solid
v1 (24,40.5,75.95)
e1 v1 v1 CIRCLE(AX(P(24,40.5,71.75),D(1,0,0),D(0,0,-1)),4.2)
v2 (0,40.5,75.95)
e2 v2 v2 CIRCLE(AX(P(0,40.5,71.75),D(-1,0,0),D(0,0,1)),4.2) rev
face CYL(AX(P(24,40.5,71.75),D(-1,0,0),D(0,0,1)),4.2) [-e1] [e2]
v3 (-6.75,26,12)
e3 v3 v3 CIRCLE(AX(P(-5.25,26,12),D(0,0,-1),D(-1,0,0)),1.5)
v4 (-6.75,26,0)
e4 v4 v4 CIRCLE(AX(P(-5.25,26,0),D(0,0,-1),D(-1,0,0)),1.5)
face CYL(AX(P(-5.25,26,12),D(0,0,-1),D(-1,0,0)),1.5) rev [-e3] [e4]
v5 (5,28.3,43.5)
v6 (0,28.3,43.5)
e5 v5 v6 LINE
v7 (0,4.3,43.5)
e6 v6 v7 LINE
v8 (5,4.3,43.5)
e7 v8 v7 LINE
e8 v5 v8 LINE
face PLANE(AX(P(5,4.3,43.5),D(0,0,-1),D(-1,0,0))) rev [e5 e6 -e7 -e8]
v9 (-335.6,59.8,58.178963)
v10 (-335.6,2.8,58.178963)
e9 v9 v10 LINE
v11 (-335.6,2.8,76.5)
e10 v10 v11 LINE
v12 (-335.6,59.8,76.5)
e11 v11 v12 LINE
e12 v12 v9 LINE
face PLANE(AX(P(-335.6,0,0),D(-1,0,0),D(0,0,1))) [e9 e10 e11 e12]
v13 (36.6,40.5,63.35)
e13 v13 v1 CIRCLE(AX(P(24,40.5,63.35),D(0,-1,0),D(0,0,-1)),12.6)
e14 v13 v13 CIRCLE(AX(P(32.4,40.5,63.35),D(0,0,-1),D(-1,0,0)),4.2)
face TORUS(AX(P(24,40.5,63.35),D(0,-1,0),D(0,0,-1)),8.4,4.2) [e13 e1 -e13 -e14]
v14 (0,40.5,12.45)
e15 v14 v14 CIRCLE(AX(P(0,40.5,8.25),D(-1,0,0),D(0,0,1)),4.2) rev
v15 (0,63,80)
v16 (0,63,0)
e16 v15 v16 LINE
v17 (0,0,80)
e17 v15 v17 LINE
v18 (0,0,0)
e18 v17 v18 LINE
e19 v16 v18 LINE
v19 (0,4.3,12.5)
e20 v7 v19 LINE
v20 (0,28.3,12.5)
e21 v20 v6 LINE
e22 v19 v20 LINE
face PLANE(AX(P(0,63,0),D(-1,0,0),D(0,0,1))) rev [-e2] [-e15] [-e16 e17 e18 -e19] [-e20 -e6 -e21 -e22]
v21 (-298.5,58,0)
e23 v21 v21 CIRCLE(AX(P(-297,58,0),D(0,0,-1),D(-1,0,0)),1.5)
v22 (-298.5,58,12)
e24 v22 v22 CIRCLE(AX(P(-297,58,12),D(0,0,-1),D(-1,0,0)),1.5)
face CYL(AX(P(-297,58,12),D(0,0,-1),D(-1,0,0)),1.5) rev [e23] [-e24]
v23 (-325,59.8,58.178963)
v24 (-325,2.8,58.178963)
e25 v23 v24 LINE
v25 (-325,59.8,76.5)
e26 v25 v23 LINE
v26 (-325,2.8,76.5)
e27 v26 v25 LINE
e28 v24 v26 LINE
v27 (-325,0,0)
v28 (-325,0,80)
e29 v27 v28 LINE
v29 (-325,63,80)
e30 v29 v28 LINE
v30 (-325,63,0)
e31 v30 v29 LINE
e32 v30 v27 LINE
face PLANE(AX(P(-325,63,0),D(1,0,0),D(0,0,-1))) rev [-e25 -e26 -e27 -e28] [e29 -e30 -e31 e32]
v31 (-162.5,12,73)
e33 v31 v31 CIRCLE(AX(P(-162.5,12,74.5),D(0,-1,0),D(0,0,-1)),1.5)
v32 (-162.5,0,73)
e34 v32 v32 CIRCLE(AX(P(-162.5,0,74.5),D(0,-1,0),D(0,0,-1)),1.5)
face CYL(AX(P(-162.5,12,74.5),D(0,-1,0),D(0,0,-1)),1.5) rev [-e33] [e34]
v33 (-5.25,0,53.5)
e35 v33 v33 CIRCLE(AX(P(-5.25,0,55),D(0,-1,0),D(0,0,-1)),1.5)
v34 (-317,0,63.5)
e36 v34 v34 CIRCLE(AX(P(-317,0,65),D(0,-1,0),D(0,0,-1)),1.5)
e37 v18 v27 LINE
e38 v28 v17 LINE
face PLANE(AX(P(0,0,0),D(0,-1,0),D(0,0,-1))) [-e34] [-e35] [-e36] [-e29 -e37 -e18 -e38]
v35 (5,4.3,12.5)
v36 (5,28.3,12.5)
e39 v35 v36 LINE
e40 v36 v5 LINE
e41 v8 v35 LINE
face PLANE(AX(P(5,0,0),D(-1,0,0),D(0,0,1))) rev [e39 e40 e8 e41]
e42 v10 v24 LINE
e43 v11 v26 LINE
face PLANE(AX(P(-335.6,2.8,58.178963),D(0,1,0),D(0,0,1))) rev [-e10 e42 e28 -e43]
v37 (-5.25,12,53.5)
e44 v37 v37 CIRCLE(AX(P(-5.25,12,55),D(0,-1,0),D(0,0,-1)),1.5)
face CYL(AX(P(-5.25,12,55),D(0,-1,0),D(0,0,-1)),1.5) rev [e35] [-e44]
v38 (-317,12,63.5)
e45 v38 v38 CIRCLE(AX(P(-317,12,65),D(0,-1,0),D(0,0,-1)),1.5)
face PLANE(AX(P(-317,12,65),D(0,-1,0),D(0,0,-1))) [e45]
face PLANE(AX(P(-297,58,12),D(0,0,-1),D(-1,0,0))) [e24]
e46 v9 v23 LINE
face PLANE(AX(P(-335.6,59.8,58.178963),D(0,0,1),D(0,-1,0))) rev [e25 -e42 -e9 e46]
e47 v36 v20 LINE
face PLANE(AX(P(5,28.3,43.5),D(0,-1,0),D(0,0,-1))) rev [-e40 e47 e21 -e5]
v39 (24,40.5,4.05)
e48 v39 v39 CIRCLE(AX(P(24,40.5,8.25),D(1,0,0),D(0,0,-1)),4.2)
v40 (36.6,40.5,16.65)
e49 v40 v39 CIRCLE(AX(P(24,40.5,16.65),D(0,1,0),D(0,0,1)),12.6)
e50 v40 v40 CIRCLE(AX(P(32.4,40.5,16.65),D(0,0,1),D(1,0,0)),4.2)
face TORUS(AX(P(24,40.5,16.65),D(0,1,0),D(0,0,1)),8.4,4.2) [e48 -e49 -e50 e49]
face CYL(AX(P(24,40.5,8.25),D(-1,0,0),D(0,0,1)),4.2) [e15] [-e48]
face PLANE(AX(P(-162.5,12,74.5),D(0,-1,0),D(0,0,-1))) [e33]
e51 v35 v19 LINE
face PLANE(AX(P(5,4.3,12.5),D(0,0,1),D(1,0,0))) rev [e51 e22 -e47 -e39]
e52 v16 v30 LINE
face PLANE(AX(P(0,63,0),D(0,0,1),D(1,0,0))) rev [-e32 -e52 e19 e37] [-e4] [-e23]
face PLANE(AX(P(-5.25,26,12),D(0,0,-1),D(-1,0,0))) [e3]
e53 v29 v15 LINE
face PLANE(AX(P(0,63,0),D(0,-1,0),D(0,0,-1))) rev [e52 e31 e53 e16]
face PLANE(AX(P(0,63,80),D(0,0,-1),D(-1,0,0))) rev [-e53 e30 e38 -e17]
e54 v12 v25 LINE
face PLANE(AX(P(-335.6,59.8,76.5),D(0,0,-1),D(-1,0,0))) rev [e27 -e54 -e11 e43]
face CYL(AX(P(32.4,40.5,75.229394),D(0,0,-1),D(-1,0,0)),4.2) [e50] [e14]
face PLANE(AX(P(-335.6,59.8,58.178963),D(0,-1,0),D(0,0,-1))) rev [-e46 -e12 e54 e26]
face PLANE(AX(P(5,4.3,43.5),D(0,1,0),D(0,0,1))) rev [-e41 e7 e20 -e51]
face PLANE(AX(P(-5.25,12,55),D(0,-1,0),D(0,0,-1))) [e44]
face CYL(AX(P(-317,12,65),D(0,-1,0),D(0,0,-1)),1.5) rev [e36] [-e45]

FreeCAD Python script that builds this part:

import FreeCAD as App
import Part
import Sketcher

V = App.Vector

doc = App.newDocument("Part")
body = doc.addObject("PartDesign::Body", "Body")

sketch1 = body.newObject("Sketcher::SketchObject", "Sketch")
sketch1.AttachmentSupport = (doc.getObject("XZ_Plane"), [""])
sketch1.MapMode = "FlatFace"
sketch1.addGeometry([
    Part.LineSegment(V(-325, 0, 0), V(-325, 80, 0)),
    Part.LineSegment(V(-325, 80, 0), V(0, 80, 0)),
    Part.LineSegment(V(0, 80, 0), V(0, 0, 0)),
    Part.LineSegment(V(0, 0, 0), V(-325, 0, 0)),
], False)
sketch1.addConstraint([
    Sketcher.Constraint("Coincident", 0, 2, 1, 1),
    Sketcher.Constraint("Coincident", 1, 2, 2, 1),
    Sketcher.Constraint("Coincident", 2, 2, 3, 1),
    Sketcher.Constraint("Coincident", 3, 2, 0, 1),
    Sketcher.Constraint("Vertical", 0),
    Sketcher.Constraint("Horizontal", 1),
    Sketcher.Constraint("Vertical", 2),
    Sketcher.Constraint("Horizontal", 3),
    Sketcher.Constraint("Coincident", 2, 2, -1, 1),
    Sketcher.Constraint("DistanceX", 1, 1, 1, 2, 325.0),
    Sketcher.Constraint("DistanceY", 0, 1, 0, 2, 80.0),
])
pad1 = body.newObject("PartDesign::Pad", "Pad")
pad1.Profile = sketch1
pad1.Length = 63
pad1.Reversed = True

sketch2 = body.newObject("Sketcher::SketchObject", "Sketch001")
sketch2.AttachmentSupport = (doc.getObject("YZ_Plane"), [""])
sketch2.MapMode = "FlatFace"
sketch2.addGeometry([
    Part.Circle(V(40.5, 71.8, 0), V(0, 0, 1), 4.2),
    Part.Circle(V(40.5, 8.2, 0), V(0, 0, 1), 4.2),
], False)
sketch2.addConstraint([
    Sketcher.Constraint("Equal", 0, 1),
    Sketcher.Constraint("Vertical", 0, 3, 1, 3),
    Sketcher.Constraint("Diameter", 0, 8.4),
    Sketcher.Constraint("DistanceX", -1, 1, 0, 3, 40.5),
    Sketcher.Constraint("DistanceY", 1, 3, 0, 3, 63.5),
    Sketcher.Constraint("DistanceY", -1, 1, 0, 3, 71.75),
])
pad2 = body.newObject("PartDesign::Pad", "Pad001")
pad2.Profile = sketch2
pad2.Length = 24

sketch3 = body.newObject("Sketcher::SketchObject", "Sketch002")
sketch3.AttachmentSupport = (doc.getObject("YZ_Plane"), [""])
sketch3.MapMode = "FlatFace"
sketch3.AttachmentOffset = App.Placement(V(0, 0, 24), App.Rotation())
sketch3.addGeometry(Part.Circle(V(40.5, 71.8, 0), V(0, 0, 1), 4.2), False)
sketch3.addGeometry(Part.LineSegment(V(40.5, 63.4, 0), V(50.5, 63.4, 0)), True)
sketch3.addConstraint([
    Sketcher.Constraint("Horizontal", 1),
    Sketcher.Constraint("Vertical", 0, 3, 1, 1),
    Sketcher.Constraint("Diameter", 0, 8.4),
    Sketcher.Constraint("DistanceX", 1, 1, 1, 2, 10.0),
    Sketcher.Constraint("DistanceX", -1, 1, 0, 3, 40.5),
    Sketcher.Constraint("DistanceY", 1, 1, 0, 3, 8.4),
    Sketcher.Constraint("DistanceY", -1, 1, 0, 3, 71.75),
])
revolution = body.newObject("PartDesign::Revolution", "Revolution")
revolution.Profile = sketch3
revolution.ReferenceAxis = (sketch3, ["Axis0"])
revolution.Angle = 90

sketch4 = body.newObject("Sketcher::SketchObject", "Sketch003")
sketch4.AttachmentSupport = (doc.getObject("YZ_Plane"), [""])
sketch4.MapMode = "FlatFace"
sketch4.AttachmentOffset = App.Placement(V(0, 0, 24), App.Rotation())
sketch4.addGeometry(Part.Circle(V(40.5, 8.2, 0), V(0, 0, 1), 4.2), False)
sketch4.addGeometry(Part.LineSegment(V(40.5, 16.6, 0), V(30.5, 16.6, 0)), True)
sketch4.addConstraint([
    Sketcher.Constraint("Horizontal", 1),
    Sketcher.Constraint("Vertical", 0, 3, 1, 1),
    Sketcher.Constraint("Diameter", 0, 8.4),
    Sketcher.Constraint("DistanceX", 1, 2, 1, 1, 10.0),
    Sketcher.Constraint("DistanceX", -1, 1, 0, 3, 40.5),
    Sketcher.Constraint("DistanceY", 0, 3, 1, 1, 8.4),
    Sketcher.Constraint("DistanceY", -1, 1, 0, 3, 8.25),
])
revolution2 = body.newObject("PartDesign::Revolution", "Revolution001")
revolution2.Profile = sketch4
revolution2.ReferenceAxis = (sketch4, ["Axis0"])
revolution2.Angle = 90

sketch5 = body.newObject("Sketcher::SketchObject", "Sketch004")
sketch5.AttachmentSupport = (doc.getObject("XY_Plane"), [""])
sketch5.MapMode = "FlatFace"
sketch5.AttachmentOffset = App.Placement(V(0, 0, 16.65), App.Rotation())
sketch5.addGeometry(Part.Circle(V(32.4, 40.5, 0), V(0, 0, 1), 4.2), False)
sketch5.addConstraint([
    Sketcher.Constraint("Diameter", 0, 8.4),
    Sketcher.Constraint("DistanceX", -1, 1, 0, 3, 32.4),
    Sketcher.Constraint("DistanceY", -1, 1, 0, 3, 40.5),
])
pad3 = body.newObject("PartDesign::Pad", "Pad002")
pad3.Profile = sketch5
pad3.Length = 46.7

sketch6 = body.newObject("Sketcher::SketchObject", "Sketch005")
sketch6.AttachmentSupport = (doc.getObject("YZ_Plane"), [""])
sketch6.MapMode = "FlatFace"
sketch6.addGeometry([
    Part.LineSegment(V(28, 44, 0), V(4, 44, 0)),
    Part.LineSegment(V(4, 44, 0), V(4, 12, 0)),
    Part.LineSegment(V(4, 12, 0), V(28, 12, 0)),
    Part.LineSegment(V(28, 12, 0), V(28, 44, 0)),
], False)
sketch6.addConstraint([
    Sketcher.Constraint("Coincident", 0, 2, 1, 1),
    Sketcher.Constraint("Coincident", 1, 2, 2, 1),
    Sketcher.Constraint("Coincident", 2, 2, 3, 1),
    Sketcher.Constraint("Coincident", 3, 2, 0, 1),
    Sketcher.Constraint("Horizontal", 0),
    Sketcher.Constraint("Vertical", 1),
    Sketcher.Constraint("Horizontal", 2),
    Sketcher.Constraint("Vertical", 3),
    Sketcher.Constraint("DistanceX", 0, 2, 0, 1, 24.0),
    Sketcher.Constraint("DistanceY", 1, 2, 1, 1, 31.0),
    Sketcher.Constraint("DistanceX", -1, 1, 0, 2, 4.3),
    Sketcher.Constraint("DistanceY", -1, 1, 0, 2, 43.5),
])
pad4 = body.newObject("PartDesign::Pad", "Pad003")
pad4.Profile = sketch6
pad4.Length = 5

sketch7 = body.newObject("Sketcher::SketchObject", "Sketch006")
sketch7.AttachmentSupport = (doc.getObject("YZ_Plane"), [""])
sketch7.MapMode = "FlatFace"
sketch7.AttachmentOffset = App.Placement(V(0, 0, -325), App.Rotation())
sketch7.addGeometry([
    Part.LineSegment(V(60, 58, 0), V(3, 58, 0)),
    Part.LineSegment(V(3, 58, 0), V(3, 76, 0)),
    Part.LineSegment(V(3, 76, 0), V(60, 76, 0)),
    Part.LineSegment(V(60, 76, 0), V(60, 58, 0)),
], False)
sketch7.addConstraint([
    Sketcher.Constraint("Coincident", 0, 2, 1, 1),
    Sketcher.Constraint("Coincident", 1, 2, 2, 1),
    Sketcher.Constraint("Coincident", 2, 2, 3, 1),
    Sketcher.Constraint("Coincident", 3, 2, 0, 1),
    Sketcher.Constraint("Horizontal", 0),
    Sketcher.Constraint("Vertical", 1),
    Sketcher.Constraint("Horizontal", 2),
    Sketcher.Constraint("Vertical", 3),
    Sketcher.Constraint("DistanceX", 0, 2, 0, 1, 57.0),
    Sketcher.Constraint("DistanceX", -1, 1, 0, 2, 2.8),
    Sketcher.Constraint("DistanceY", -1, 1, 1, 2, 76.5),
    Sketcher.Constraint("DistanceY", 1, 1, 1, 2, 18.321037),
])
pad5 = body.newObject("PartDesign::Pad", "Pad004")
pad5.Profile = sketch7
pad5.Length = 10.6
pad5.Reversed = True

sketch8 = body.newObject("Sketcher::SketchObject", "Sketch007")
sketch8.AttachmentSupport = (doc.getObject("XZ_Plane"), [""])
sketch8.MapMode = "FlatFace"
sketch8.addGeometry([
    Part.Circle(V(-317, 65, 0), V(0, 0, 1), 1.5),
    Part.Circle(V(-162.5, 74.5, 0), V(0, 0, 1), 1.5),
    Part.Circle(V(-5.2, 55, 0), V(0, 0, 1), 1.5),
], False)
sketch8.addConstraint([
    Sketcher.Constraint("Equal", 0, 1),
    Sketcher.Constraint("Equal", 1, 2),
    Sketcher.Constraint("Diameter", 0, 3.0),
    Sketcher.Constraint("DistanceX", 0, 3, -1, 1, 317.0),
    Sketcher.Constraint("DistanceY", -1, 1, 0, 3, 65.0),
    Sketcher.Constraint("DistanceY", -1, 1, 2, 3, 55.0),
    Sketcher.Constraint("DistanceX", 1, 3, -1, 1, 162.5),
    Sketcher.Constraint("DistanceY", -1, 1, 1, 3, 74.5),
    Sketcher.Constraint("DistanceX", 2, 3, -1, 1, 5.25),
])
pocket1 = body.newObject("PartDesign::Pocket", "Pocket")
pocket1.Profile = sketch8
pocket1.Length = 12

sketch9 = body.newObject("Sketcher::SketchObject", "Sketch008")
sketch9.AttachmentSupport = (doc.getObject("XY_Plane"), [""])
sketch9.MapMode = "FlatFace"
sketch9.addGeometry([
    Part.Circle(V(-5.2, 26, 0), V(0, 0, 1), 1.5),
    Part.Circle(V(-297, 58, 0), V(0, 0, 1), 1.5),
], False)
sketch9.addConstraint([
    Sketcher.Constraint("Equal", 0, 1),
    Sketcher.Constraint("Diameter", 0, 3.0),
    Sketcher.Constraint("DistanceY", -1, 1, 0, 3, 26.0),
    Sketcher.Constraint("DistanceX", 1, 3, -1, 1, 297.0),
    Sketcher.Constraint("DistanceY", -1, 1, 1, 3, 58.0),
    Sketcher.Constraint("DistanceX", 0, 3, -1, 1, 5.25),
])
pocket2 = body.newObject("PartDesign::Pocket", "Pocket001")
pocket2.Profile = sketch9
pocket2.Length = 12
pocket2.Reversed = True

doc.recompute()
